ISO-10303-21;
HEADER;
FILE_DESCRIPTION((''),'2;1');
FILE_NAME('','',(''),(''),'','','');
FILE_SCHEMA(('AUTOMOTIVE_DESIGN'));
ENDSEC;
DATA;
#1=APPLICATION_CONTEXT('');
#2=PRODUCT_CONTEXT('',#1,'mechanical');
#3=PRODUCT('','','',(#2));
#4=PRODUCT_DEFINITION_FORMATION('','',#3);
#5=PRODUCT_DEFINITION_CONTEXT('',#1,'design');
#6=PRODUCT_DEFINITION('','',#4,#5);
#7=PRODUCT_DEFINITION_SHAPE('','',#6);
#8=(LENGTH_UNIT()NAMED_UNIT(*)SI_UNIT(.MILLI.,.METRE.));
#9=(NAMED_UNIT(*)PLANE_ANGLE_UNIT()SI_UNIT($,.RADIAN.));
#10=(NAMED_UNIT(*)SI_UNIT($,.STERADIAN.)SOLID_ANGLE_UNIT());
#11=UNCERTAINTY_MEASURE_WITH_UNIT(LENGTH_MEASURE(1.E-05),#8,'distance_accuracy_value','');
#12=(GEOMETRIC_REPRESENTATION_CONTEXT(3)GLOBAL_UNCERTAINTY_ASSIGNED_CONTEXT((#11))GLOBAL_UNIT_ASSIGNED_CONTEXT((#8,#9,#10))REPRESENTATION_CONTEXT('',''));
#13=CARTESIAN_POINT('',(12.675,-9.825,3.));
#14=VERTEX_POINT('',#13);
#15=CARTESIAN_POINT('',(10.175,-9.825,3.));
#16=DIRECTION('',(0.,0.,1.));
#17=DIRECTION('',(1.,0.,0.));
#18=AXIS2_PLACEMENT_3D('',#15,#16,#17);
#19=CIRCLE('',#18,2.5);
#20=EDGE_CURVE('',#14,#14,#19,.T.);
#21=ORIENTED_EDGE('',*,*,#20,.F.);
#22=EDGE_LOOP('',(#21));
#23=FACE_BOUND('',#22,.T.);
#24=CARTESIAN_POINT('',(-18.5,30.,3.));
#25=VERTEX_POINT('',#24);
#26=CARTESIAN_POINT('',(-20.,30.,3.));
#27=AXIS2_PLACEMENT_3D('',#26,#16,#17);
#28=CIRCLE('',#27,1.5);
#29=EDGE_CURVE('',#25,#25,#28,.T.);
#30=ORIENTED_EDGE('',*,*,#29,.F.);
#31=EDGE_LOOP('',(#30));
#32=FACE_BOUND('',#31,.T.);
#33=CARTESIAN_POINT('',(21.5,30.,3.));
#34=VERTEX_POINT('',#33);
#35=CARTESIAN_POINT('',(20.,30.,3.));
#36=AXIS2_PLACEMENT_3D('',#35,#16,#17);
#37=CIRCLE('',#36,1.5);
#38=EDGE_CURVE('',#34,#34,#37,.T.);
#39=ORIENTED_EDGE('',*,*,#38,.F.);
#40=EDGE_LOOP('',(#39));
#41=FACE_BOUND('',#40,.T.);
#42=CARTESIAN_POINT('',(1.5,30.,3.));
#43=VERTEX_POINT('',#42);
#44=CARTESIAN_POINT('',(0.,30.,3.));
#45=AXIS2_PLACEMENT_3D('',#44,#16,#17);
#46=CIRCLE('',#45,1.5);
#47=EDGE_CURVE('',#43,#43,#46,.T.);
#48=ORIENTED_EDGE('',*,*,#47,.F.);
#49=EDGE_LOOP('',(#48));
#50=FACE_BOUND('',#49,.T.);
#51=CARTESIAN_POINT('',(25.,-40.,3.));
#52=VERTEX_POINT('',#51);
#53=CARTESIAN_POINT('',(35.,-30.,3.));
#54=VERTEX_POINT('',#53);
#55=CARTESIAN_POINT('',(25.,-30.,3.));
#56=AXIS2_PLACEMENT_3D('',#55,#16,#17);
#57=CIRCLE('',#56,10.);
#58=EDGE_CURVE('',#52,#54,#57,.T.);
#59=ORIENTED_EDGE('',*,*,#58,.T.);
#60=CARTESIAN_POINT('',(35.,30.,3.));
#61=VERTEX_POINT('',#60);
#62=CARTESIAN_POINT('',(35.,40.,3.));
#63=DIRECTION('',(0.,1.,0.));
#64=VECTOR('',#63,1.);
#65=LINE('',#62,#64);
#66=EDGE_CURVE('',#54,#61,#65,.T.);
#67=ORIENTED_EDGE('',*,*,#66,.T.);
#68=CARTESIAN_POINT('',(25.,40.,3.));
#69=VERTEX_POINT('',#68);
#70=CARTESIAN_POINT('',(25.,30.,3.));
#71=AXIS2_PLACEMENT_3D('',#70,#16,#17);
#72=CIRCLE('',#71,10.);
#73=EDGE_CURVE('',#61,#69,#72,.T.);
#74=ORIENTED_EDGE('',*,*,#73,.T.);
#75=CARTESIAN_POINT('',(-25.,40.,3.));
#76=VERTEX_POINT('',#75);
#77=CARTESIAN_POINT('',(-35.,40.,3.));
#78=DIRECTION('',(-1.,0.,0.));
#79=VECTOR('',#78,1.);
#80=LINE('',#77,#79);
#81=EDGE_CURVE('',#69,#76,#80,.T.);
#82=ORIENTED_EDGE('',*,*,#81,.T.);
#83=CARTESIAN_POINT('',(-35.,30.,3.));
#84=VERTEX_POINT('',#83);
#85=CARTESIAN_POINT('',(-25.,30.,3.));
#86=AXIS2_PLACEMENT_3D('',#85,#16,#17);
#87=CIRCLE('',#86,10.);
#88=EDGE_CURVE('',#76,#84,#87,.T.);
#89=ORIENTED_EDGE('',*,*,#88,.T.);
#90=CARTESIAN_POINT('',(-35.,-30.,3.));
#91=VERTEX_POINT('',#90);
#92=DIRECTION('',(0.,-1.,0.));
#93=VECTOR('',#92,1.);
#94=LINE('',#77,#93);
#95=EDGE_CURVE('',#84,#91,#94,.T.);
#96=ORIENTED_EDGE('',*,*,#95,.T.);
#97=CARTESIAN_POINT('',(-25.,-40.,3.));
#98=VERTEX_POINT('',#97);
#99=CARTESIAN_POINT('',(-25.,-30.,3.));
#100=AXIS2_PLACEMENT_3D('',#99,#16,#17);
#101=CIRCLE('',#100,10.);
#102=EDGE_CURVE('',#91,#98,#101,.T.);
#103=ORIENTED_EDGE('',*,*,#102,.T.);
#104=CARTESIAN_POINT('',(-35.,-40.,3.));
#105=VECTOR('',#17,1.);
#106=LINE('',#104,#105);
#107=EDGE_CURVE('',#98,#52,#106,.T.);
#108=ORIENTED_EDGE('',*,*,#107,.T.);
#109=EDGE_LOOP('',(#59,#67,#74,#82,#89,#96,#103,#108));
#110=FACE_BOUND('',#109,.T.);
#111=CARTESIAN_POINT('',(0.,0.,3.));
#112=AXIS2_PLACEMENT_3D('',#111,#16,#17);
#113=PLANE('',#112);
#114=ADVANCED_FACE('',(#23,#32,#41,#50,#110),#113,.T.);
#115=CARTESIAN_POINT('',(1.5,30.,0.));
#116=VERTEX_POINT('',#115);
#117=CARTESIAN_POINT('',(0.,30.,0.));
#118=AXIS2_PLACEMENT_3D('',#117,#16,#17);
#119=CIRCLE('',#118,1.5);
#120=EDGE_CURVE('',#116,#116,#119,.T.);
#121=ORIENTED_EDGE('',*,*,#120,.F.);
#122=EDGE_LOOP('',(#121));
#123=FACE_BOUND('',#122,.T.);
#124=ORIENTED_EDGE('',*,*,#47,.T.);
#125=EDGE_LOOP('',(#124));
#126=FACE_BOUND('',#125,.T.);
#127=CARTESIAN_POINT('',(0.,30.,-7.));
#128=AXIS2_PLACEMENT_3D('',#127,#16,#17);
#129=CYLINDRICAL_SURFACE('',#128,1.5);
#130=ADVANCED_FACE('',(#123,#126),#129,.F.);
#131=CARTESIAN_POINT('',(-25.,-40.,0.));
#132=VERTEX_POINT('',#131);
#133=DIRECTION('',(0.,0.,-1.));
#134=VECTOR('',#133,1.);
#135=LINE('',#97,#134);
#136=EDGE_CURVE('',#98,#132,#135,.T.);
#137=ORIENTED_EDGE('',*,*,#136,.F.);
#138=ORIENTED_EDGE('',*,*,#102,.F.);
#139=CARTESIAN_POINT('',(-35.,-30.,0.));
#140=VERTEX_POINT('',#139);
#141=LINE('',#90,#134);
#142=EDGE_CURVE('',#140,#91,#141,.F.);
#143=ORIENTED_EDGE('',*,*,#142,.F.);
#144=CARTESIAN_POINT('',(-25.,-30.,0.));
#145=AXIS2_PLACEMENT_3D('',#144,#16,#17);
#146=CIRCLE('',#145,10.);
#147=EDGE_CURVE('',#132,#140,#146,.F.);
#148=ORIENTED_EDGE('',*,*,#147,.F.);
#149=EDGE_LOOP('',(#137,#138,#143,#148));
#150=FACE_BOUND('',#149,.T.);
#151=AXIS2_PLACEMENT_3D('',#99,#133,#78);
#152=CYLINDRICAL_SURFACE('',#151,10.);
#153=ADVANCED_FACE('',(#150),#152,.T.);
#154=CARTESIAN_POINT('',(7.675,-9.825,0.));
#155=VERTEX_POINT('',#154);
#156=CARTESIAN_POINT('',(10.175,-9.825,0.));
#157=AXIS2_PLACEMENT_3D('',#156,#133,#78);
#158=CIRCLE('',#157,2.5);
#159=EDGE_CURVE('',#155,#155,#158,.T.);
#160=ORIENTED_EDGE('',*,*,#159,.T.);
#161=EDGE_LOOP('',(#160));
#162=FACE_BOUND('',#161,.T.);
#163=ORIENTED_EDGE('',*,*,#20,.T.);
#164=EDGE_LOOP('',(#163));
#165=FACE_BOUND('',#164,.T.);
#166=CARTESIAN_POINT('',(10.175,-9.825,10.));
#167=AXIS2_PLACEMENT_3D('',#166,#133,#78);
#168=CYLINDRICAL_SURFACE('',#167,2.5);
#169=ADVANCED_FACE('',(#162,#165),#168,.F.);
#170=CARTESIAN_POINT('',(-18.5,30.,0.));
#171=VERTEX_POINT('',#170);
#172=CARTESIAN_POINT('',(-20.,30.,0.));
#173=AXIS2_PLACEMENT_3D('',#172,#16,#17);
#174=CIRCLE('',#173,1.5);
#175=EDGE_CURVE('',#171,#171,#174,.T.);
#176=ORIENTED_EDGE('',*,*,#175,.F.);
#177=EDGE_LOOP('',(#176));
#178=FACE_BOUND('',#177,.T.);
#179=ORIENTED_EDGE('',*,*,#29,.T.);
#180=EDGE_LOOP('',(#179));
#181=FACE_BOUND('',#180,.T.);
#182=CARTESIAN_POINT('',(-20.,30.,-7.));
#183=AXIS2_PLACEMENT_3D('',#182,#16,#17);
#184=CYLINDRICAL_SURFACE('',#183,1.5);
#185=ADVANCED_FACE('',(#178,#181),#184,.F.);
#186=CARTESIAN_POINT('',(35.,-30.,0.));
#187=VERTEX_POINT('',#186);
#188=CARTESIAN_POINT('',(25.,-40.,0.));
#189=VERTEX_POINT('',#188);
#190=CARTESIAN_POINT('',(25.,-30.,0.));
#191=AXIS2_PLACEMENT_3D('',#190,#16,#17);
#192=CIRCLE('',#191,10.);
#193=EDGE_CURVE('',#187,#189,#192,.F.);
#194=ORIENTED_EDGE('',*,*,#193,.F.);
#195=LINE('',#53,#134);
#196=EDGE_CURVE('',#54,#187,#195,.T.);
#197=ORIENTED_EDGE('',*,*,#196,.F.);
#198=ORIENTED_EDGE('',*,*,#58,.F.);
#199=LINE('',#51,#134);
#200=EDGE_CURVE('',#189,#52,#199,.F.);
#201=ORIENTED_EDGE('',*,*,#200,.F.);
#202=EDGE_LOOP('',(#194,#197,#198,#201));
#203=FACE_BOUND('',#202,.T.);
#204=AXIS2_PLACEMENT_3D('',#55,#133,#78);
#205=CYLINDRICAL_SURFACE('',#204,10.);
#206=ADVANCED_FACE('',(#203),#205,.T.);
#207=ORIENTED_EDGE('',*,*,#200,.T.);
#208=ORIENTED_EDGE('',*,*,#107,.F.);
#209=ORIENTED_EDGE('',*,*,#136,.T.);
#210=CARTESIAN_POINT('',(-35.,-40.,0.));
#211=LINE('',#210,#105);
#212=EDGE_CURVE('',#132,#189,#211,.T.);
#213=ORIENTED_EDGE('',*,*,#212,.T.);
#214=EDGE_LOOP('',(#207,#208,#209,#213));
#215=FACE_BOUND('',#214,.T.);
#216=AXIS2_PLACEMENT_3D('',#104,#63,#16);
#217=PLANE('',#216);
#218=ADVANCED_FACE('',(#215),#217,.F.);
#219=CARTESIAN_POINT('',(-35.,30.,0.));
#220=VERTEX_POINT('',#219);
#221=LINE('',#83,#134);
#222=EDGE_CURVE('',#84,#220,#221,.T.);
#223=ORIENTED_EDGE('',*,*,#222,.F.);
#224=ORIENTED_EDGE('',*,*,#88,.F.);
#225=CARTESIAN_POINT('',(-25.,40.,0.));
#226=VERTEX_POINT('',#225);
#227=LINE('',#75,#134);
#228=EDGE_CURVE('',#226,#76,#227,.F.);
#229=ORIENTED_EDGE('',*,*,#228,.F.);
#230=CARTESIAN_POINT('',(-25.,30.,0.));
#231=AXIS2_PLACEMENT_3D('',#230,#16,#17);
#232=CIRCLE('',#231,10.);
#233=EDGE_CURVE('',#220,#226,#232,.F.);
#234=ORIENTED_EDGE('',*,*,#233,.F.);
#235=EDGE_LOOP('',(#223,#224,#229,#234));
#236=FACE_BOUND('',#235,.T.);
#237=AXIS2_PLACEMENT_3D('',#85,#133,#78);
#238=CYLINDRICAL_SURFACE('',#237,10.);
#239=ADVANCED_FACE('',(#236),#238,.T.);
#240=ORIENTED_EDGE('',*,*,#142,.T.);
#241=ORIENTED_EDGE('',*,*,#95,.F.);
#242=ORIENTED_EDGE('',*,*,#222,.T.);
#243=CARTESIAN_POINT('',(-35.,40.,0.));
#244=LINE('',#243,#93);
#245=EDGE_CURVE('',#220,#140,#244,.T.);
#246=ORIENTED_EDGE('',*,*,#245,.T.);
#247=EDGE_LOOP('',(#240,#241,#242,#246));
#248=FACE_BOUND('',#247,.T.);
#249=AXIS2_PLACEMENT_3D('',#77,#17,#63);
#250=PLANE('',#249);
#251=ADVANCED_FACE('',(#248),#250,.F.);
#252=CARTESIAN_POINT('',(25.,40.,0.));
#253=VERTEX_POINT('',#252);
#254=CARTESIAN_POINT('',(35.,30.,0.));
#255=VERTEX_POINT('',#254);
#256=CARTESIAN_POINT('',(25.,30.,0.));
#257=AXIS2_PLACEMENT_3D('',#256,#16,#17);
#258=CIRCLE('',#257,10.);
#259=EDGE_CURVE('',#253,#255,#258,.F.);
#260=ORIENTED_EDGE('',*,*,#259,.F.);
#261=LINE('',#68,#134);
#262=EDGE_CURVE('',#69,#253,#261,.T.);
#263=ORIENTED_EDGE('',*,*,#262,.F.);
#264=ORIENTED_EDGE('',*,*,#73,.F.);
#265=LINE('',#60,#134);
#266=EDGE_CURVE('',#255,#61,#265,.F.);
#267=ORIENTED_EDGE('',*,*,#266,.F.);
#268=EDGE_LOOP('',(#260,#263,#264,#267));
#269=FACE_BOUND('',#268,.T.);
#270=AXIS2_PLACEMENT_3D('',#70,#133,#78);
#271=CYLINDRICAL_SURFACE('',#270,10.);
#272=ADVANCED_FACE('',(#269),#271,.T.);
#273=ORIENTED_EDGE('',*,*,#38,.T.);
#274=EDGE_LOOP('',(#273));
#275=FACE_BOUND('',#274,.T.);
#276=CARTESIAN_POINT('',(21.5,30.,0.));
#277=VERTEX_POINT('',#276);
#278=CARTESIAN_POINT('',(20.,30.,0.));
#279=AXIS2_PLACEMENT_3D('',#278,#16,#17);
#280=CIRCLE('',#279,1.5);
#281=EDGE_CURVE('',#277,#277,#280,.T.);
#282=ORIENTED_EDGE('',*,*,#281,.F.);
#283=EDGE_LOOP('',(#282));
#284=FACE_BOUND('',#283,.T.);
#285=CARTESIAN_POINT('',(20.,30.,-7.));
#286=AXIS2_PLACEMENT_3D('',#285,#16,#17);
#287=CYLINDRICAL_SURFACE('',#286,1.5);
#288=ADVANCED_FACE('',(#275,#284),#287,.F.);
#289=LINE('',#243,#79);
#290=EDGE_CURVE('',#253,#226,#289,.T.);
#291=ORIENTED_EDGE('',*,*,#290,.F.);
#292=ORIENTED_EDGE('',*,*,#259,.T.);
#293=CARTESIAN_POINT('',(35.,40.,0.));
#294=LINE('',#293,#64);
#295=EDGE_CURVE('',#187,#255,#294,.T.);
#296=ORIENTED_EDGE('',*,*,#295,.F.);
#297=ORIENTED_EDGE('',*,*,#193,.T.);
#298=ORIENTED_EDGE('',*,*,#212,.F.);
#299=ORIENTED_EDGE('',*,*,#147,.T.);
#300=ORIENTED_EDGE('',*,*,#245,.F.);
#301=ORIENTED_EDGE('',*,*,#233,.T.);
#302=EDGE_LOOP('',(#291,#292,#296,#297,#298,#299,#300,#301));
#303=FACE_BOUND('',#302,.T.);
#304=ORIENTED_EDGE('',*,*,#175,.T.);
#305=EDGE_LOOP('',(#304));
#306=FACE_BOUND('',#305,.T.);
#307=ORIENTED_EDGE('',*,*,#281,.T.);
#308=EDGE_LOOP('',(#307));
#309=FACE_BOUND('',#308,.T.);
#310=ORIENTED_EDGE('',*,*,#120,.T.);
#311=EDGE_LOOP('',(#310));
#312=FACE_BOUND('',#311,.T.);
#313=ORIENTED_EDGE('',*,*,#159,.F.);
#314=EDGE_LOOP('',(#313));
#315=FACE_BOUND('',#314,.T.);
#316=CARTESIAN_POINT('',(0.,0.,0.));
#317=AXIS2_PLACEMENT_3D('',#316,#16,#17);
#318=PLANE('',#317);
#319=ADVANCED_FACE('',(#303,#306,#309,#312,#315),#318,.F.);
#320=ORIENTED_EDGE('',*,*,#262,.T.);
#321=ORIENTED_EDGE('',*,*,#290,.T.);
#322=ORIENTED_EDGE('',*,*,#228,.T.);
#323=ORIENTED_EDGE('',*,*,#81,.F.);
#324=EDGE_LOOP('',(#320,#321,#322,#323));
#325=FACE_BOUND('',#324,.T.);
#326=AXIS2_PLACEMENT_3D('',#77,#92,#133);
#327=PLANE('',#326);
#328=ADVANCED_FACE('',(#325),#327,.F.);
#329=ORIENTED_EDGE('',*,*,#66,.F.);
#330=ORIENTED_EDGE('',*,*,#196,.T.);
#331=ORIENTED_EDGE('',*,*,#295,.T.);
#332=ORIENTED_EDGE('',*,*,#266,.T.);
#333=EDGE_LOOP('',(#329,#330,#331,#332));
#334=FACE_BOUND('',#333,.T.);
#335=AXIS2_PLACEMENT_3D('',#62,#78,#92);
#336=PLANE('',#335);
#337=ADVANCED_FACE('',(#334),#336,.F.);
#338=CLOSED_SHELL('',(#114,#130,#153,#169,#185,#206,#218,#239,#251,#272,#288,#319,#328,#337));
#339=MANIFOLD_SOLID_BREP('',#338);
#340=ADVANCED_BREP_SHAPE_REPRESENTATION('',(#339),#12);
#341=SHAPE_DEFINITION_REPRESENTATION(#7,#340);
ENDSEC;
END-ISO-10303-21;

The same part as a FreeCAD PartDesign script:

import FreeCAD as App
import Part
import Sketcher

V = App.Vector
Q = App.Units.Quantity


def edges_at(feature, points):
    """Names of the edges that pass closest to the given points."""
    edges = feature.Shape.Edges
    near = lambda p: min(range(len(edges)), key=lambda i: edges[i].distToShape(Part.Vertex(*p))[0])
    return sorted({f"Edge{near(p) + 1}" for p in points})


def add_polygon(sketch, points):
    """Adds a closed chain of lines whose ends are joined by coincident constraints."""
    first, n = sketch.GeometryCount, len(points)
    for a, b in zip(points, points[1:] + points[:1]):
        sketch.addGeometry(Part.LineSegment(App.Vector(*a, 0), App.Vector(*b, 0)), False)
    for i in range(n):
        sketch.addConstraint(Sketcher.Constraint("Coincident", first + i, 2, first + (i + 1) % n, 1))

doc = App.newDocument("Part")
params = doc.addObject("Spreadsheet::Sheet", "Params")
for row, (alias, value) in enumerate([
    ("sketch1_width", "70 mm"),
    ("sketch1_height", "80 mm"),
    ("pad1_length", "3 mm"),
    ("sketch2_diameter", "5 mm"),
    ("pocket1_length", "10 mm"),
    ("sketch3_diameter", "3 mm"),
    ("pocket2_length", "10 mm"),
    ("fillet_radius", "10 mm"),
], start=1):
    params.set(f"A{row}", alias)
    params.set(f"B{row}", "=" + value)
    params.setAlias(f"B{row}", alias)

body = doc.addObject("PartDesign::Body", "Body")

sketch1 = body.newObject("Sketcher::SketchObject", "Sketch")
sketch1.AttachmentSupport = (doc.getObject("XY_Plane"), [""])
sketch1.MapMode = "FlatFace"
add_polygon(sketch1, [(-35, 40), (-35, -40), (35, -40), (35, 40)])
sketch1.addConstraint([
    Sketcher.Constraint("Vertical", 0),
    Sketcher.Constraint("Horizontal", 1),
    Sketcher.Constraint("Vertical", 2),
    Sketcher.Constraint("Horizontal", 3),
    Sketcher.Constraint("Symmetric", 0, 2, 2, 2, -1, 1),
    Sketcher.Constraint("DistanceX", 1, 1, 1, 2, Q("70 mm")),
    Sketcher.Constraint("DistanceY", 0, 2, 0, 1, Q("80 mm")),
])
sketch1.setExpression("Constraints[9]", "Params.sketch1_width")
sketch1.setExpression("Constraints[10]", "Params.sketch1_height")
pad1 = body.newObject("PartDesign::Pad", "Pad")
pad1.Profile = sketch1
pad1.setExpression("Length", "Params.pad1_length")

sketch2 = body.newObject("Sketcher::SketchObject", "Sketch001")
sketch2.AttachmentSupport = (doc.getObject("XY_Plane"), [""])
sketch2.MapMode = "FlatFace"
sketch2.addGeometry(Part.Circle(V(10.2, -9.8, 0), V(0, 0, 1), 2.5), False)
sketch2.addConstraint([
    Sketcher.Constraint("Diameter", 0, Q("5 mm")),
    Sketcher.Constraint("DistanceX", -1, 1, 0, 3, Q("10.175 mm")),
    Sketcher.Constraint("DistanceY", 0, 3, -1, 1, Q("9.825 mm")),
])
sketch2.setExpression("Constraints[0]", "Params.sketch2_diameter")
pocket1 = body.newObject("PartDesign::Pocket", "Pocket")
pocket1.Profile = sketch2
pocket1.setExpression("Length", "Params.pocket1_length")
pocket1.Reversed = True

sketch3 = body.newObject("Sketcher::SketchObject", "Sketch002")
sketch3.AttachmentSupport = (doc.getObject("XY_Plane"), [""])
sketch3.MapMode = "FlatFace"
sketch3.AttachmentOffset = App.Placement(V(0, 0, 3), App.Rotation())
sketch3.addGeometry([
    Part.Circle(V(0, 30, 0), V(0, 0, 1), 1.5),
    Part.Circle(V(20, 30, 0), V(0, 0, 1), 1.5),
    Part.Circle(V(-20, 30, 0), V(0, 0, 1), 1.5),
], False)
sketch3.addConstraint([
    Sketcher.Constraint("Equal", 0, 1),
    Sketcher.Constraint("Equal", 1, 2),
    Sketcher.Constraint("Symmetric", 1, 3, 2, 3, -2),
    Sketcher.Constraint("PointOnObject", 0, 3, -2),
    Sketcher.Constraint("Horizontal", 0, 3, 1, 3),
    Sketcher.Constraint("Diameter", 0, Q("3 mm")),
    Sketcher.Constraint("DistanceY", -1, 1, 0, 3, Q("30 mm")),
    Sketcher.Constraint("DistanceX", -1, 1, 1, 3, Q("20 mm")),
])
sketch3.setExpression("Constraints[5]", "Params.sketch3_diameter")
pocket2 = body.newObject("PartDesign::Pocket", "Pocket001")
pocket2.Profile = sketch3
pocket2.setExpression("Length", "Params.pocket2_length")
doc.recompute()

fillet = body.newObject("PartDesign::Fillet", "Fillet")
fillet.Base = (pocket2, edges_at(pocket2, [
    (35, -40, 1.5),
    (-35, -40, 1.5),
    (-35, 40, 1.5),
    (35, 40, 1.5),
]))
fillet.setExpression("Radius", "Params.fillet_radius")

doc.recompute()
